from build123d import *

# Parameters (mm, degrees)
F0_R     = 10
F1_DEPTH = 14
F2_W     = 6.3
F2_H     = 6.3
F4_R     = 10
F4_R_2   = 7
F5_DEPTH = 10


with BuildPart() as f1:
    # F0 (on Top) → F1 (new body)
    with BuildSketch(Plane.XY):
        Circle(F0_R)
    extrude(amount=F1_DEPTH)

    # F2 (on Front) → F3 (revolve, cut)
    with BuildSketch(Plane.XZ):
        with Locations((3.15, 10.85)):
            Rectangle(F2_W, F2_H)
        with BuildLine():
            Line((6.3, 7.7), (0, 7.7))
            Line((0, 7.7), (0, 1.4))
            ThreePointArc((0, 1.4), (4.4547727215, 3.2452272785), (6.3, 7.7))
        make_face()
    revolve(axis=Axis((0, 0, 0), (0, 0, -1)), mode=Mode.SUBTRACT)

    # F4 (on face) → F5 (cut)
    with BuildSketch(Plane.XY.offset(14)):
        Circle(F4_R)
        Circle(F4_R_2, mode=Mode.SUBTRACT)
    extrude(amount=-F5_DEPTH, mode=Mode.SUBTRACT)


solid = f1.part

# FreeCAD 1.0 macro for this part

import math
import FreeCAD as App
import Part
import Sketcher
from FreeCAD import Vector
Q = App.Units.Quantity

doc = App.newDocument("Part")
body = doc.addObject("PartDesign::Body", "Body")

sketch1 = body.newObject("Sketcher::SketchObject", "Sketch")
sketch1.AttachmentSupport = (doc.getObject("XY_Plane"), [""])
sketch1.MapMode = "FlatFace"
sketch1.addGeometry(Part.Circle(Vector(0, 0, 0), Vector(0, 0, 1), 10), False)
sketch1.addConstraint([
    Sketcher.Constraint("Coincident", 0, 3, -1, 1),
    Sketcher.Constraint("Diameter", 0, Q("20 mm")),
])
pad1 = body.newObject("PartDesign::Pad", "Pad")
pad1.Profile = sketch1
pad1.Length = 14

sketch2 = body.newObject("Sketcher::SketchObject", "Sketch001")
sketch2.AttachmentSupport = (doc.getObject("XZ_Plane"), [""])
sketch2.MapMode = "FlatFace"
sketch2.addGeometry([
    Part.LineSegment(Vector(0, 14, 0), Vector(0, 1.4, 0)),
    Part.ArcOfCircle(Part.Circle(Vector(0, 7.7, 0), Vector(0, 0, 1), 6.3), math.radians(-90), math.radians(0)),
    Part.LineSegment(Vector(6.3, 7.7, 0), Vector(6.3, 14, 0)),
    Part.LineSegment(Vector(6.3, 14, 0), Vector(0, 14, 0)),
], False)
sketch2.addConstraint([
    Sketcher.Constraint("Coincident", 0, 2, 1, 1),
    Sketcher.Constraint("Tangent", 1, 2, 2, 1),
    Sketcher.Constraint("Coincident", 2, 2, 3, 1),
    Sketcher.Constraint("Coincident", 3, 2, 0, 1),
    Sketcher.Constraint("Vertical", 0),
    Sketcher.Constraint("Vertical", 2),
    Sketcher.Constraint("Horizontal", 3),
    Sketcher.Constraint("PointOnObject", 1, 3, -2),
    Sketcher.Constraint("PointOnObject", 0, 2, -2),
    Sketcher.Constraint("Equal", 3, 2),
    Sketcher.Constraint("Radius", 1, Q("6.3 mm")),
    Sketcher.Constraint("DistanceY", -1, 1, 2, 2, Q("14 mm")),
])
groove = body.newObject("PartDesign::Groove", "Groove")
groove.Profile = sketch2
groove.ReferenceAxis = (sketch2, ["V_Axis"])
groove.Angle = 360

sketch3 = body.newObject("Sketcher::SketchObject", "Sketch002")
sketch3.AttachmentSupport = (doc.getObject("XY_Plane"), [""])
sketch3.MapMode = "FlatFace"
sketch3.AttachmentOffset = App.Placement(Vector(0, 0, 14), App.Rotation())
sketch3.addGeometry([
    Part.Circle(Vector(0, 0, 0), Vector(0, 0, 1), 10),
    Part.Circle(Vector(0, 0, 0), Vector(0, 0, 1), 7),
], False)
sketch3.addConstraint([
    Sketcher.Constraint("Coincident", 0, 3, -1, 1),
    Sketcher.Constraint("Coincident", 1, 3, -1, 1),
    Sketcher.Constraint("Diameter", 0, Q("20 mm")),
    Sketcher.Constraint("Diameter", 1, Q("14 mm")),
])
pocket1 = body.newObject("PartDesign::Pocket", "Pocket")
pocket1.Profile = sketch3
pocket1.Length = 10

doc.recompute()
